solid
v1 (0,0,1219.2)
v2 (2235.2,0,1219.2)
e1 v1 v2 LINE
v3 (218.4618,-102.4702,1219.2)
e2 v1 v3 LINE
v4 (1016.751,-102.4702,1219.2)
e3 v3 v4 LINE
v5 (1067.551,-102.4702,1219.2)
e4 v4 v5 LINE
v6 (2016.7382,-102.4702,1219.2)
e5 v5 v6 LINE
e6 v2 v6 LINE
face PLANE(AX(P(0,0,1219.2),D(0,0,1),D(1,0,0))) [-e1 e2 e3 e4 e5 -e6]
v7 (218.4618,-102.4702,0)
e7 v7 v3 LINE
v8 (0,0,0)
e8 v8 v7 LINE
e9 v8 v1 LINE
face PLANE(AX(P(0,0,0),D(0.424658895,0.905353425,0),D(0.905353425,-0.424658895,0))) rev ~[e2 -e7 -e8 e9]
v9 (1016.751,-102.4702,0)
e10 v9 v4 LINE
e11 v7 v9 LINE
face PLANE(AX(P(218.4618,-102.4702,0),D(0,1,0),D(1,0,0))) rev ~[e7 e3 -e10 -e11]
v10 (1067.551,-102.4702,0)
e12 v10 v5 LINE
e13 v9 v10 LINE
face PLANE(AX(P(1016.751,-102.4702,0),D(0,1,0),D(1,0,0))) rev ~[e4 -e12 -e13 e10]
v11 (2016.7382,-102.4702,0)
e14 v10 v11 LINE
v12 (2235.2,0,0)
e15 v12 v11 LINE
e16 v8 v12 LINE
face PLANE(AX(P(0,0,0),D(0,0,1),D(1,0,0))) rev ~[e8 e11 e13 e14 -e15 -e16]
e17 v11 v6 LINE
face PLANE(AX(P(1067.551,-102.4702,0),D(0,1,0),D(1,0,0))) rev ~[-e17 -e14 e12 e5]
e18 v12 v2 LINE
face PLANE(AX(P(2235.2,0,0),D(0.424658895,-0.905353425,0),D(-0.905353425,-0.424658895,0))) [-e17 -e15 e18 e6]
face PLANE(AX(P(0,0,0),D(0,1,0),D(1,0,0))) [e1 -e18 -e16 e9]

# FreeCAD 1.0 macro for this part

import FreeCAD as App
import Part
import Sketcher

V = App.Vector
Q = App.Units.Quantity

doc = App.newDocument("Part")
params = doc.addObject("Spreadsheet::Sheet", "Params")
for row, (alias, value) in enumerate([
    ("sketch1_width", "88 in"),
    ("sketch1_length", "9.5 in"),
    ("pad1_length", "48 in"),
], start=1):
    params.set(f"A{row}", alias)
    params.set(f"B{row}", "=" + value)
    params.setAlias(f"B{row}", alias)

body = doc.addObject("PartDesign::Body", "Body")

sketch1 = body.newObject("Sketcher::SketchObject", "Sketch")
sketch1.AttachmentSupport = (doc.getObject("XY_Plane"), [""])
sketch1.MapMode = "FlatFace"
sketch1.addGeometry([
    Part.LineSegment(V(2235, 0, 0), V(0, 0, 0)),
    Part.LineSegment(V(0, 0, 0), V(218, -102, 0)),
    Part.LineSegment(V(218, -102, 0), V(2017, -102, 0)),
    Part.LineSegment(V(2017, -102, 0), V(2235, 0, 0)),
], False)
sketch1.addConstraint([
    Sketcher.Constraint("Coincident", 0, 2, 1, 1),
    Sketcher.Constraint("Coincident", 1, 2, 2, 1),
    Sketcher.Constraint("Coincident", 2, 2, 3, 1),
    Sketcher.Constraint("Coincident", 3, 2, 0, 1),
    Sketcher.Constraint("Horizontal", 0),
    Sketcher.Constraint("Horizontal", 2),
    Sketcher.Constraint("Coincident", 0, 2, -1, 1),
    Sketcher.Constraint("Equal", 1, 3),
    Sketcher.Constraint("DistanceX", 0, 2, 0, 1, Q("88 in")),
    Sketcher.Constraint("Distance", 1, Q("9.5 in")),
    Sketcher.Constraint("Angle", 1, Q("-25.129 deg")),
])
sketch1.setExpression("Constraints[8]", "Params.sketch1_width")
sketch1.setExpression("Constraints[9]", "Params.sketch1_length")
pad1 = body.newObject("PartDesign::Pad", "Pad")
pad1.Profile = sketch1
pad1.setExpression("Length", "Params.pad1_length")

doc.recompute()
